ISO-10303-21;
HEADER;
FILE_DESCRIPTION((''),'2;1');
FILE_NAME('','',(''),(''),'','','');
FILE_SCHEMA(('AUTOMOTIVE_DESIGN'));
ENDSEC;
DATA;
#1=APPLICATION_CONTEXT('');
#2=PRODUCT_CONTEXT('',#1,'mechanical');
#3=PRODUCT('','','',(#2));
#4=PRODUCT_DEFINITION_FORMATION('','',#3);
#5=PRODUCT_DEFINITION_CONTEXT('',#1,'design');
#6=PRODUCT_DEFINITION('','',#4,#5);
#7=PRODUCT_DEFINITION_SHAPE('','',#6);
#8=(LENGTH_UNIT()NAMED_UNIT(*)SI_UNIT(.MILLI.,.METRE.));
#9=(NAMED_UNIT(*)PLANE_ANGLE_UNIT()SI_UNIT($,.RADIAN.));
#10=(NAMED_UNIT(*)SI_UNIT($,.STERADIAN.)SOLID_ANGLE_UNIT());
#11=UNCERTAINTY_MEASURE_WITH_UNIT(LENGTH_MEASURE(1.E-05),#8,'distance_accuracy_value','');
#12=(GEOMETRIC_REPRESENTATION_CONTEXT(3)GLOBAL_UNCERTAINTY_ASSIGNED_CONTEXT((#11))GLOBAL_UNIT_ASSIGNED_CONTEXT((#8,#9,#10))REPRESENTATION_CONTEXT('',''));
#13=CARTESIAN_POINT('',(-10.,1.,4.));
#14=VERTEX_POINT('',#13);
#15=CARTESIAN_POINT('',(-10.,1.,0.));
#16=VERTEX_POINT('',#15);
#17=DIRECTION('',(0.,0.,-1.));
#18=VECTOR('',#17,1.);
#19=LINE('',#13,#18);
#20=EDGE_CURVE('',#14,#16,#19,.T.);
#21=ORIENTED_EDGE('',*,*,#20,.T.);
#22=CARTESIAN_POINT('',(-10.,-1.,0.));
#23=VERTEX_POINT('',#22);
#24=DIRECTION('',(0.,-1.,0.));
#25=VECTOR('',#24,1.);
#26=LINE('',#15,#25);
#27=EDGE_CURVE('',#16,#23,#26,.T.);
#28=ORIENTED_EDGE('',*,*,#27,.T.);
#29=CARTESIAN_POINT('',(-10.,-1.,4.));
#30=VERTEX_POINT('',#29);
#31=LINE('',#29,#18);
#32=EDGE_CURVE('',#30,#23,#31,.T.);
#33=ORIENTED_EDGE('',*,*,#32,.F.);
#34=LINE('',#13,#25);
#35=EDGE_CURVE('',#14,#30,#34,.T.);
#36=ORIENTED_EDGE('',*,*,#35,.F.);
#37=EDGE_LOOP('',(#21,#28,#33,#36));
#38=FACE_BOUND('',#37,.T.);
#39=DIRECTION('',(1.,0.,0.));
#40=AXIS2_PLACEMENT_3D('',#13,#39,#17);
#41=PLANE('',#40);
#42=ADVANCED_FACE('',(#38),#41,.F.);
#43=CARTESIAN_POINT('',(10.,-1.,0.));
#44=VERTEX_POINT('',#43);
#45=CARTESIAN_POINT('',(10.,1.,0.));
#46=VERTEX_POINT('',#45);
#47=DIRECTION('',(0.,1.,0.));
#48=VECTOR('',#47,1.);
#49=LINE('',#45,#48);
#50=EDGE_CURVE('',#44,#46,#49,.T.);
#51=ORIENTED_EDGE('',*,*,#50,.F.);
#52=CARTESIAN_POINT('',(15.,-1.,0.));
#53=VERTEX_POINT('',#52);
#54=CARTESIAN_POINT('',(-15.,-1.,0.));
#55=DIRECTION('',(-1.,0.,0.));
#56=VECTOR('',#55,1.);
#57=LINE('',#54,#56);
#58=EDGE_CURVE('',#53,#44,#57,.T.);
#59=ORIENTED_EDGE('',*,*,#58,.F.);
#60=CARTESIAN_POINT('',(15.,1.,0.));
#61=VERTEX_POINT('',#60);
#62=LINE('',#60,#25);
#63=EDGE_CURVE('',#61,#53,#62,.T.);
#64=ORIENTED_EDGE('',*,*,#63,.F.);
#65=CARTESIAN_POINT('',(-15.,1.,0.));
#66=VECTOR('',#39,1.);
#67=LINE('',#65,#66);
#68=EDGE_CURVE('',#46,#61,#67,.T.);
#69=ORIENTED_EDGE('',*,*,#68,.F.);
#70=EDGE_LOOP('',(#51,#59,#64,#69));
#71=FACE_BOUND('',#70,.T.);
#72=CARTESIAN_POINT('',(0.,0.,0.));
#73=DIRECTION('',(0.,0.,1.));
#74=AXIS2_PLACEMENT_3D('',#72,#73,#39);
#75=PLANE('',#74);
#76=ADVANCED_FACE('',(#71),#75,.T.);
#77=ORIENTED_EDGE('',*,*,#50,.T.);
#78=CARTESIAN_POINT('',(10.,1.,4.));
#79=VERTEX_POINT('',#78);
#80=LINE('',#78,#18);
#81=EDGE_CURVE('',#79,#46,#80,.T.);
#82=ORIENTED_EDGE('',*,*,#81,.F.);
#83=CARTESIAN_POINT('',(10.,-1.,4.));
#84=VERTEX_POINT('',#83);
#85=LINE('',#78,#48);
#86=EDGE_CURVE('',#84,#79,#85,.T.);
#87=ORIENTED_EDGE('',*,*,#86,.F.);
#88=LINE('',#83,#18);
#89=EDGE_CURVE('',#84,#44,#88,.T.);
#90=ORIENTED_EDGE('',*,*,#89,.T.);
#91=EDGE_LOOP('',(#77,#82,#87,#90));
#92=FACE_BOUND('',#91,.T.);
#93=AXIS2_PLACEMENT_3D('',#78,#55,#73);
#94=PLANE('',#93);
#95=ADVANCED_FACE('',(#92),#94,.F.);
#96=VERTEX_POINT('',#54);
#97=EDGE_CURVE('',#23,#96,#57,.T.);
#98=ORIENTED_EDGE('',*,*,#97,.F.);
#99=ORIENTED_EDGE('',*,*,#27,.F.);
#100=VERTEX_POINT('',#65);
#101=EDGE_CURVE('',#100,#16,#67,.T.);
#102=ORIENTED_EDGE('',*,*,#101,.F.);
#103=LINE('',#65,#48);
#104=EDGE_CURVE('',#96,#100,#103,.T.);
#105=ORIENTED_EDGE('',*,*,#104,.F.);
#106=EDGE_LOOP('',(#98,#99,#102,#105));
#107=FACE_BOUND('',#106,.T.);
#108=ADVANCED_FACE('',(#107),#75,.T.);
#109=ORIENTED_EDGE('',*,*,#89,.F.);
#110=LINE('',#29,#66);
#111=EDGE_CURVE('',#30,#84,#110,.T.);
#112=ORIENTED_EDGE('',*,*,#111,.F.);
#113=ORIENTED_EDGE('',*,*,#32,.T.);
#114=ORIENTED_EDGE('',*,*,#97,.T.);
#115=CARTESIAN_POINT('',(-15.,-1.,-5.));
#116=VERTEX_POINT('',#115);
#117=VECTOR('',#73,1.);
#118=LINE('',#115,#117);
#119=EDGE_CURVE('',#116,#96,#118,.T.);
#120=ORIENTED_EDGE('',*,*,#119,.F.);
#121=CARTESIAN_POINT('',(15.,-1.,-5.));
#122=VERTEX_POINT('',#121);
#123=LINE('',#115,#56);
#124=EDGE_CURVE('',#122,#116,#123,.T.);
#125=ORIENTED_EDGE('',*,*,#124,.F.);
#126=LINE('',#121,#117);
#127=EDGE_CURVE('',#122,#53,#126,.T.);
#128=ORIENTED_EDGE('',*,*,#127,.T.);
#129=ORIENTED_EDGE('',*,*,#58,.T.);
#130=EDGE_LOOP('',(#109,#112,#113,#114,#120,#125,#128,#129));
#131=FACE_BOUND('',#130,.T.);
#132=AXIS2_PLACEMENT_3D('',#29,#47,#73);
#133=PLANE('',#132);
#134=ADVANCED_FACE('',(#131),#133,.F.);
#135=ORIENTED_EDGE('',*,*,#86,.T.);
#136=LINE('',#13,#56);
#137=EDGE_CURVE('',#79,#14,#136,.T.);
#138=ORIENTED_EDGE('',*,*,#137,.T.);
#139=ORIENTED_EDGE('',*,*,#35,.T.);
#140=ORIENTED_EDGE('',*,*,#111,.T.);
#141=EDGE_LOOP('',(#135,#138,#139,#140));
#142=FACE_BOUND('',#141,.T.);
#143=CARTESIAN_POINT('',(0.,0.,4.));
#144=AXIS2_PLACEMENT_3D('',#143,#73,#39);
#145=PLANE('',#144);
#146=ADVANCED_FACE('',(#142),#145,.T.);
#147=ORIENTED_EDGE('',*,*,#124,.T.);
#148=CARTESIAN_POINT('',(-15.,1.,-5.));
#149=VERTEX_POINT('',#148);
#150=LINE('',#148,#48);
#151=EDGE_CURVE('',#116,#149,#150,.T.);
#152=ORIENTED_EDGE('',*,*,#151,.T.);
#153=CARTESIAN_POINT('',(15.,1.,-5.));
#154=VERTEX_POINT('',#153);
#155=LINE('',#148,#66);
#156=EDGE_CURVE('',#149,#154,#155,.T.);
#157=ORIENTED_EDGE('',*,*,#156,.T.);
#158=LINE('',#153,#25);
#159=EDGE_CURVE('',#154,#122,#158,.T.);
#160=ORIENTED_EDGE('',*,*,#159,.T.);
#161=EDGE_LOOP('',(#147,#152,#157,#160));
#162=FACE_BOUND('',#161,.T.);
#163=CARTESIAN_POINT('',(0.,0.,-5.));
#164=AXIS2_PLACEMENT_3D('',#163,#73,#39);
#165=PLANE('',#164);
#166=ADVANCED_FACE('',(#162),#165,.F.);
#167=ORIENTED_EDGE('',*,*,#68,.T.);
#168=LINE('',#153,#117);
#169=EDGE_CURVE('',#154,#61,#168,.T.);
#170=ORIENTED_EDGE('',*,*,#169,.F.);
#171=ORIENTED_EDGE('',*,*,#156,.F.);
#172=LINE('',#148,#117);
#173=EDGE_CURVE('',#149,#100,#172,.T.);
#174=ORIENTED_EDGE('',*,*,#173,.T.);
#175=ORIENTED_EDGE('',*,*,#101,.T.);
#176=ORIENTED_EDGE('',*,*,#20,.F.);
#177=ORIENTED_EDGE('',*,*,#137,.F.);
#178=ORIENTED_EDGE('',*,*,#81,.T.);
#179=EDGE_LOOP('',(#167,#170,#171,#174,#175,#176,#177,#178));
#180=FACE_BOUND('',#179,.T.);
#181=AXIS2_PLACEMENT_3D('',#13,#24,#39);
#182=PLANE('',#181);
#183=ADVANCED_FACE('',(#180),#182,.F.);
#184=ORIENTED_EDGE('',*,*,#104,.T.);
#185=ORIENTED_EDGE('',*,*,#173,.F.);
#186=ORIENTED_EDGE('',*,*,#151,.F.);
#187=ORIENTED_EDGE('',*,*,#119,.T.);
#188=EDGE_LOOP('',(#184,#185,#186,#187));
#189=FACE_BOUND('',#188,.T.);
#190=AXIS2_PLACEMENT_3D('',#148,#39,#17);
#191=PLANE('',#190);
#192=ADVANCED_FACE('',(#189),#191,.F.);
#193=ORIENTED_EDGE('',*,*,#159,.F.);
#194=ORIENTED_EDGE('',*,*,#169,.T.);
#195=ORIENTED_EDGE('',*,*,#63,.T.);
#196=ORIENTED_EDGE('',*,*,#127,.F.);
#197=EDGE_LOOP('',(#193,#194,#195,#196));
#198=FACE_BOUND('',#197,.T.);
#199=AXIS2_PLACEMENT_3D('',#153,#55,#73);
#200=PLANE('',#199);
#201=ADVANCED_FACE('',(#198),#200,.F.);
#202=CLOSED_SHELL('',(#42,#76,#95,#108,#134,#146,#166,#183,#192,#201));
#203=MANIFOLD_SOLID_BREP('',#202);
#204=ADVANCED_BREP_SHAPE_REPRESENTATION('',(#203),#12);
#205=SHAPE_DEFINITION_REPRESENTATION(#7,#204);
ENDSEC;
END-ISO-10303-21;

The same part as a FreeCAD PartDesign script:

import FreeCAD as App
import Part
import Sketcher

V = App.Vector


def add_polygon(sketch, points):
    """Adds a closed chain of lines whose ends are joined by coincident constraints."""
    first, n = sketch.GeometryCount, len(points)
    for a, b in zip(points, points[1:] + points[:1]):
        sketch.addGeometry(Part.LineSegment(App.Vector(*a, 0), App.Vector(*b, 0)), False)
    for i in range(n):
        sketch.addConstraint(Sketcher.Constraint("Coincident", first + i, 2, first + (i + 1) % n, 1))

doc = App.newDocument("Part")
body = doc.addObject("PartDesign::Body", "Body")

# Sketch on XY plane
sketch1 = body.newObject("Sketcher::SketchObject", "Sketch")
sketch1.AttachmentSupport = (doc.getObject("XY_Plane"), [""])
sketch1.MapMode = "FlatFace"
add_polygon(sketch1, [(-10, 1), (-10, -1), (10, -1), (10, 1)])  # lines 0-3
sketch1.addConstraint(Sketcher.Constraint("Vertical", 0))
sketch1.addConstraint(Sketcher.Constraint("Horizontal", 1))
sketch1.addConstraint(Sketcher.Constraint("Vertical", 2))
sketch1.addConstraint(Sketcher.Constraint("Horizontal", 3))
sketch1.addConstraint(Sketcher.Constraint("Symmetric", 0, 2, 2, 2, -1, 1))
sketch1.addConstraint(Sketcher.Constraint("DistanceX", 1, 1, 1, 2, 20.0))
sketch1.addConstraint(Sketcher.Constraint("DistanceY", 0, 2, 0, 1, 2.0))
pad1 = body.newObject("PartDesign::Pad", "Pad")
pad1.Profile = sketch1
pad1.Length = 4

# Sketch on XY plane
sketch2 = body.newObject("Sketcher::SketchObject", "Sketch001")
sketch2.AttachmentSupport = (doc.getObject("XY_Plane"), [""])
sketch2.MapMode = "FlatFace"
add_polygon(sketch2, [(15, 1), (15, -1), (-15, -1), (-15, 1)])  # lines 0-3
sketch2.addConstraint(Sketcher.Constraint("Vertical", 0))
sketch2.addConstraint(Sketcher.Constraint("Horizontal", 1))
sketch2.addConstraint(Sketcher.Constraint("Vertical", 2))
sketch2.addConstraint(Sketcher.Constraint("Horizontal", 3))
sketch2.addConstraint(Sketcher.Constraint("Symmetric", 0, 2, 2, 2, -1, 1))
sketch2.addConstraint(Sketcher.Constraint("DistanceX", 1, 2, 1, 1, 30.0))
sketch2.addConstraint(Sketcher.Constraint("DistanceY", 0, 2, 0, 1, 2.0))
pad2 = body.newObject("PartDesign::Pad", "Pad001")
pad2.Profile = sketch2
pad2.Length = 5
pad2.Reversed = True

doc.recompute()
